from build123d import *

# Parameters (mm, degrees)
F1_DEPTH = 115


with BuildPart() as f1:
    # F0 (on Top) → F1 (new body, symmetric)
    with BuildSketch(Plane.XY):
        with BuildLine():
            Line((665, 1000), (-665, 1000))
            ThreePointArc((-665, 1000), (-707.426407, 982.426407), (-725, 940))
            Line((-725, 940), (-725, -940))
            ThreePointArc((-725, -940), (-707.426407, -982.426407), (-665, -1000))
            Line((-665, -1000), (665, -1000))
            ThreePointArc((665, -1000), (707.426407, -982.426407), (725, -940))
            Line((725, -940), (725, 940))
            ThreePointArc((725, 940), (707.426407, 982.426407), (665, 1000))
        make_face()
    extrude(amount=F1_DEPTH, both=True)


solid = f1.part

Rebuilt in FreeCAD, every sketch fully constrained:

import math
import FreeCAD as App
import Part
import Sketcher

V = App.Vector
Q = App.Units.Quantity

doc = App.newDocument("Part")
body = doc.addObject("PartDesign::Body", "Body")

sketch1 = doc.addObject("Sketcher::SketchObject", "Sketch")
body.addObject(sketch1)
sketch1.AttachmentSupport = (doc.XY_Plane, [""])
sketch1.MapMode = "FlatFace"
sketch1.addGeometry([
    Part.LineSegment(V(665, 1000, 0), V(-665, 1000, 0)),
    Part.ArcOfCircle(Part.Circle(V(-665, 940, 0), V(0, 0, 1), 60), math.radians(90), math.radians(180)),
    Part.LineSegment(V(-725, 940, 0), V(-725, -940, 0)),
    Part.ArcOfCircle(Part.Circle(V(-665, -940, 0), V(0, 0, 1), 60), math.radians(180), math.radians(270)),
    Part.LineSegment(V(-665, -1000, 0), V(665, -1000, 0)),
    Part.ArcOfCircle(Part.Circle(V(665, -940, 0), V(0, 0, 1), 60), math.radians(-90), math.radians(0)),
    Part.LineSegment(V(725, -940, 0), V(725, 940, 0)),
    Part.ArcOfCircle(Part.Circle(V(665, 940, 0), V(0, 0, 1), 60), math.radians(0), math.radians(90)),
], False)
sketch1.addConstraint([
    Sketcher.Constraint("Tangent", 0, 2, 1, 1),
    Sketcher.Constraint("Tangent", 1, 2, 2, 1),
    Sketcher.Constraint("Tangent", 2, 2, 3, 1),
    Sketcher.Constraint("Tangent", 3, 2, 4, 1),
    Sketcher.Constraint("Tangent", 4, 2, 5, 1),
    Sketcher.Constraint("Tangent", 5, 2, 6, 1),
    Sketcher.Constraint("Tangent", 6, 2, 7, 1),
    Sketcher.Constraint("Tangent", 7, 2, 0, 1),
    Sketcher.Constraint("Horizontal", 0),
    Sketcher.Constraint("Vertical", 2),
    Sketcher.Constraint("Horizontal", 4),
    Sketcher.Constraint("Vertical", 6),
    Sketcher.Constraint("Equal", 1, 3),
    Sketcher.Constraint("Equal", 3, 5),
    Sketcher.Constraint("Equal", 5, 7),
    Sketcher.Constraint("Symmetric", 1, 3, 5, 3, -1, 1),
    Sketcher.Constraint("Radius", 1, Q("60 mm")),
    Sketcher.Constraint("DistanceX", 0, 2, 0, 1, Q("1330 mm")),
    Sketcher.Constraint("DistanceY", 2, 2, 2, 1, Q("1880 mm")),
])
pad1 = doc.addObject("PartDesign::Pad", "Pad")
body.addObject(pad1)
pad1.Profile = sketch1
pad1.Length = 230
pad1.Midplane = True

doc.recompute()
